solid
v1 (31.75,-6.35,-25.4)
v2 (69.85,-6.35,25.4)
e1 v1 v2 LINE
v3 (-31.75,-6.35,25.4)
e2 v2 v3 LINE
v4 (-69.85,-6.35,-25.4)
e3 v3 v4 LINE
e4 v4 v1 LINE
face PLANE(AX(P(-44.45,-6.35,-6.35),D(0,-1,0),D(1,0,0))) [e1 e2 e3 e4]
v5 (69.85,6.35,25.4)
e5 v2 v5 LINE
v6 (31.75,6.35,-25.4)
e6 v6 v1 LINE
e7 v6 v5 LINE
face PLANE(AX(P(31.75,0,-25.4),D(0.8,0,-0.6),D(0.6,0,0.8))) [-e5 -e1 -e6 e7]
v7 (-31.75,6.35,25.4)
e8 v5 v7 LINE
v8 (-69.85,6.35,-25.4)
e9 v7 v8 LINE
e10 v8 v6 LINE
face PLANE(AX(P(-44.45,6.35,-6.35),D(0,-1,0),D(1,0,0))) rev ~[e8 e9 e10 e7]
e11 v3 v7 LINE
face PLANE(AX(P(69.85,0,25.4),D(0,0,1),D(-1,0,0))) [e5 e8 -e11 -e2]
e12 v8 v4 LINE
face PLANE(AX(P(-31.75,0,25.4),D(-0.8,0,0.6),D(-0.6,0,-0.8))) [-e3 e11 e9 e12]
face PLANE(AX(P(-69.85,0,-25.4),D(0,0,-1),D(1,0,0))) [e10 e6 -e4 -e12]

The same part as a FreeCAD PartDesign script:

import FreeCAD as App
import Part
import Sketcher

V = App.Vector
Q = App.Units.Quantity


def add_polygon(sketch, points):
    """Adds a closed chain of lines whose ends are joined by coincident constraints."""
    first, n = sketch.GeometryCount, len(points)
    for a, b in zip(points, points[1:] + points[:1]):
        sketch.addGeometry(Part.LineSegment(App.Vector(*a, 0), App.Vector(*b, 0)), False)
    for i in range(n):
        sketch.addConstraint(Sketcher.Constraint("Coincident", first + i, 2, first + (i + 1) % n, 1))

doc = App.newDocument("Part")
body = doc.addObject("PartDesign::Body", "Body")

sketch1 = body.newObject("Sketcher::SketchObject", "Sketch")
sketch1.AttachmentSupport = (doc.getObject("XZ_Plane"), [""])
sketch1.MapMode = "FlatFace"
add_polygon(sketch1, [(-31.75, 25.4), (-69.85, -25.4), (31.75, -25.4), (69.85, 25.4)])
sketch1.addConstraint(Sketcher.Constraint("Horizontal", 1))
sketch1.addConstraint(Sketcher.Constraint("Horizontal", 3))
sketch1.addConstraint(Sketcher.Constraint("Symmetric", 0, 2, 2, 2, -1, 1))
sketch1.addConstraint(Sketcher.Constraint("Parallel", 0, 2))
sketch1.addConstraint(Sketcher.Constraint("DistanceX", 1, 1, 1, 2, Q("4 in")))
sketch1.addConstraint(Sketcher.Constraint("DistanceY", 0, 2, -1, 1, Q("1 in")))
sketch1.addConstraint(Sketcher.Constraint("Distance", 0, Q("2.5 in")))
pad1 = body.newObject("PartDesign::Pad", "Pad")
pad1.Profile = sketch1
pad1.Length = Q("0.5 in")
pad1.Midplane = True

doc.recompute()
